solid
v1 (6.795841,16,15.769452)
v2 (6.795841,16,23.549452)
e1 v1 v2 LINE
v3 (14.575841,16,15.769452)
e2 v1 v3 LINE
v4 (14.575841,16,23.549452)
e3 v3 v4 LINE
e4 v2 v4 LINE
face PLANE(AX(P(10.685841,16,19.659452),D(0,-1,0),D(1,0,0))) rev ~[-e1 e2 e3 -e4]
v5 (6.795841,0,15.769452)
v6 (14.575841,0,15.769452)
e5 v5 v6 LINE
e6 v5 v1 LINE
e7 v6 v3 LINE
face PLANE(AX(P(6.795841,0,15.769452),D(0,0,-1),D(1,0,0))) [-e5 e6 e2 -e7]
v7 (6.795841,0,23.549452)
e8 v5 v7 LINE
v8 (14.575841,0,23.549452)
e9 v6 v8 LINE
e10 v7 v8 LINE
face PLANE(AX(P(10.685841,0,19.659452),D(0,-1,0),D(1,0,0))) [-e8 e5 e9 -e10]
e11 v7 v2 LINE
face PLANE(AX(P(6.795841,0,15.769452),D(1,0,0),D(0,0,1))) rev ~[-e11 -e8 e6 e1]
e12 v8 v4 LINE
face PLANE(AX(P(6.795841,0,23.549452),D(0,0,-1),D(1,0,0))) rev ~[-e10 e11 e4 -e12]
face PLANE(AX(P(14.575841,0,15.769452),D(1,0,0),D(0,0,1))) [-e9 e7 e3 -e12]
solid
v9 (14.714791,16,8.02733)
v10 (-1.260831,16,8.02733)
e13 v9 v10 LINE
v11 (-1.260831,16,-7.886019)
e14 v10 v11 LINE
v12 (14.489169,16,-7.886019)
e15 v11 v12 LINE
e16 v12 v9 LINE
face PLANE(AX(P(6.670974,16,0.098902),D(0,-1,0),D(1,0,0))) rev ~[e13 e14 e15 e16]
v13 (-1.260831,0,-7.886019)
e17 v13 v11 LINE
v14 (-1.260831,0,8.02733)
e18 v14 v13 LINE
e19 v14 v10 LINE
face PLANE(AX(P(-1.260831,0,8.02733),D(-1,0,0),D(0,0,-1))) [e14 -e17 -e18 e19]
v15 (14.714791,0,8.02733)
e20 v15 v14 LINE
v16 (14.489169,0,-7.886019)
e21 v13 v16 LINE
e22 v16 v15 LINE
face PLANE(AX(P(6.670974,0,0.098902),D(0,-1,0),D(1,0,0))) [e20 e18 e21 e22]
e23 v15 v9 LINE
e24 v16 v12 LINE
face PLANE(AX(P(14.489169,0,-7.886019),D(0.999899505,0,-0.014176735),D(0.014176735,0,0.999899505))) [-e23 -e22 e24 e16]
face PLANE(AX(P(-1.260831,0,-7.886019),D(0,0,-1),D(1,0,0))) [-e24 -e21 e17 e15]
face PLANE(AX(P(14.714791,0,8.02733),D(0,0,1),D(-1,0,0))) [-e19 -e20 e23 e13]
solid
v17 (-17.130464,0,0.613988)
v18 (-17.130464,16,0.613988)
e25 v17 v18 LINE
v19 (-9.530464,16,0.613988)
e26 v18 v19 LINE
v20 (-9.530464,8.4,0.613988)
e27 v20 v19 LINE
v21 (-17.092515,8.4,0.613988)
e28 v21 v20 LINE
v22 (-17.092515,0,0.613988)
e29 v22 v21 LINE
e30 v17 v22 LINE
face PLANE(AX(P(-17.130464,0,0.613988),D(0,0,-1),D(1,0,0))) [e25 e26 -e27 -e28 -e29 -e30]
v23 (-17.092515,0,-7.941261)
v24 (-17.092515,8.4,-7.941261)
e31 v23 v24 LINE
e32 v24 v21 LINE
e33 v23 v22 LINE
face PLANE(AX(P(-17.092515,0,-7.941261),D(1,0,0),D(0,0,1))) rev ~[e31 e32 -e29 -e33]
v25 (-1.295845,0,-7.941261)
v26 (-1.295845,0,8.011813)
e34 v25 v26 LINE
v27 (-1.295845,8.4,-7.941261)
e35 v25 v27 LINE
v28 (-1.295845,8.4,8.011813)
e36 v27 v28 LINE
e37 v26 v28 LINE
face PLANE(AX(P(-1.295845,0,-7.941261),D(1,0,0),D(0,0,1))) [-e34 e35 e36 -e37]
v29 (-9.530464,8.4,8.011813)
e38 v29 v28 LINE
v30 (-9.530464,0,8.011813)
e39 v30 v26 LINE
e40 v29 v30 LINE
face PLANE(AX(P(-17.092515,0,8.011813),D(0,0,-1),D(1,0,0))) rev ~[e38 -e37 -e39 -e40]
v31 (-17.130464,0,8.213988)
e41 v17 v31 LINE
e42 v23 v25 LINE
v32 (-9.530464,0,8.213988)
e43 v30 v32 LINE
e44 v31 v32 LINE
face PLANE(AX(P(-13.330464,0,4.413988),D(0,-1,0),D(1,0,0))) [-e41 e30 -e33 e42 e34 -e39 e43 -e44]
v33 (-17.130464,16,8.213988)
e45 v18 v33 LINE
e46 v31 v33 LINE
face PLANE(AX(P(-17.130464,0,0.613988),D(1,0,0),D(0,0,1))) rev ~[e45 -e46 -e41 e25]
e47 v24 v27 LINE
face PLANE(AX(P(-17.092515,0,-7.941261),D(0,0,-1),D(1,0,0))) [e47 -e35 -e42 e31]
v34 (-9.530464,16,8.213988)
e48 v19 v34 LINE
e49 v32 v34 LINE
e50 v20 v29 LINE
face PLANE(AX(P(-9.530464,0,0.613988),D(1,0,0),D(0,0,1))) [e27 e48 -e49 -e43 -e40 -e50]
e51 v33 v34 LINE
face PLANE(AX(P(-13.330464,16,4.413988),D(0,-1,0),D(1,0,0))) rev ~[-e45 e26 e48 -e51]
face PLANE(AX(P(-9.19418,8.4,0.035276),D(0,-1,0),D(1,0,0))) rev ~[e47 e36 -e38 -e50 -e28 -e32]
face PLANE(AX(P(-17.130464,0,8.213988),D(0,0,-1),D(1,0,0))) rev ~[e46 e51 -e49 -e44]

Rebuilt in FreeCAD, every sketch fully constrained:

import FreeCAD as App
import Part
import Sketcher
Q = App.Units.Quantity

doc = App.newDocument("Part")
body = doc.addObject("PartDesign::Body", "Body")
body.AllowCompound = True

sketch1 = doc.addObject("Sketcher::SketchObject", "Sketch")
body.addObject(sketch1)
sketch1.AttachmentSupport = (doc.XZ_Plane, [""])
sketch1.MapMode = "FlatFace"
sketch1.addGeometry([
    Part.LineSegment(App.Vector(6.795841, 23.549452, 0), App.Vector(6.795841, 15.769452, 0)),
    Part.LineSegment(App.Vector(6.795841, 15.769452, 0), App.Vector(14.575841, 15.769452, 0)),
    Part.LineSegment(App.Vector(14.575841, 15.769452, 0), App.Vector(14.575841, 23.549452, 0)),
    Part.LineSegment(App.Vector(14.575841, 23.549452, 0), App.Vector(6.795841, 23.549452, 0)),
    Part.LineSegment(App.Vector(-1.260831, -7.886019, 0), App.Vector(14.489169, -7.886019, 0)),
    Part.LineSegment(App.Vector(14.489169, -7.886019, 0), App.Vector(14.714791, 8.02733, 0)),
    Part.LineSegment(App.Vector(14.714791, 8.02733, 0), App.Vector(-1.260831, 8.02733, 0)),
    Part.LineSegment(App.Vector(-1.260831, 8.02733, 0), App.Vector(-1.260831, -7.886019, 0)),
], False)
sketch1.addConstraint([
    Sketcher.Constraint("Coincident", 0, 2, 1, 1),
    Sketcher.Constraint("Coincident", 1, 2, 2, 1),
    Sketcher.Constraint("Coincident", 2, 2, 3, 1),
    Sketcher.Constraint("Coincident", 3, 2, 0, 1),
    Sketcher.Constraint("Coincident", 4, 2, 5, 1),
    Sketcher.Constraint("Coincident", 5, 2, 6, 1),
    Sketcher.Constraint("Coincident", 6, 2, 7, 1),
    Sketcher.Constraint("Coincident", 7, 2, 4, 1),
    Sketcher.Constraint("Vertical", 0),
    Sketcher.Constraint("Horizontal", 1),
    Sketcher.Constraint("Vertical", 2),
    Sketcher.Constraint("Horizontal", 3),
    Sketcher.Constraint("Horizontal", 4),
    Sketcher.Constraint("Horizontal", 6),
    Sketcher.Constraint("Vertical", 7),
    Sketcher.Constraint("Equal", 3, 0),
    Sketcher.Constraint("DistanceX", 1, 1, 1, 2, Q("7.78 mm")),
    Sketcher.Constraint("DistanceX", 4, 1, 4, 2, Q("15.75 mm")),
    Sketcher.Constraint("DistanceY", 7, 2, 7, 1, Q("15.913349 mm")),
    Sketcher.Constraint("Distance", 5, Q("15.914948 mm")),
    Sketcher.Constraint("DistanceX", -1, 1, 0, 2, Q("6.795841 mm")),
    Sketcher.Constraint("DistanceY", -1, 1, 0, 2, Q("15.769452 mm")),
    Sketcher.Constraint("DistanceX", -1, 1, 4, 2, Q("14.489169 mm")),
    Sketcher.Constraint("DistanceY", 4, 2, -1, 1, Q("7.886019 mm")),
])
pad1 = doc.addObject("PartDesign::Pad", "Pad")
body.addObject(pad1)
pad1.Profile = sketch1
pad1.Length = 16
pad1.Reversed = True
body2 = doc.addObject("PartDesign::Body", "Body001")

sketch2 = doc.addObject("Sketcher::SketchObject", "Sketch001")
body2.addObject(sketch2)
sketch2.AttachmentSupport = (doc.getObject("XZ_Plane001"), [""])
sketch2.MapMode = "FlatFace"
sketch2.addGeometry([
    Part.LineSegment(App.Vector(-17, 8, 0), App.Vector(-17, -8, 0)),
    Part.LineSegment(App.Vector(-17, -8, 0), App.Vector(-1, -8, 0)),
    Part.LineSegment(App.Vector(-1, -8, 0), App.Vector(-1, 8, 0)),
    Part.LineSegment(App.Vector(-1, 8, 0), App.Vector(-17, 8, 0)),
], False)
sketch2.addConstraint([
    Sketcher.Constraint("Coincident", 0, 2, 1, 1),
    Sketcher.Constraint("Coincident", 1, 2, 2, 1),
    Sketcher.Constraint("Coincident", 2, 2, 3, 1),
    Sketcher.Constraint("Coincident", 3, 2, 0, 1),
    Sketcher.Constraint("Vertical", 0),
    Sketcher.Constraint("Horizontal", 1),
    Sketcher.Constraint("Vertical", 2),
    Sketcher.Constraint("Horizontal", 3),
    Sketcher.Constraint("DistanceX", 1, 1, 1, 2, Q("15.79667 mm")),
    Sketcher.Constraint("DistanceY", 0, 2, 0, 1, Q("15.953074 mm")),
    Sketcher.Constraint("DistanceY", 0, 2, -1, 1, Q("7.941261 mm")),
    Sketcher.Constraint("DistanceX", 0, 2, -1, 1, Q("17.092515 mm")),
])
pad2 = doc.addObject("PartDesign::Pad", "Pad001")
body2.addObject(pad2)
pad2.Profile = sketch2
pad2.Length = 8.4
pad2.Reversed = True

sketch3 = doc.addObject("Sketcher::SketchObject", "Sketch002")
body2.addObject(sketch3)
sketch3.AttachmentSupport = (doc.getObject("XZ_Plane001"), [""])
sketch3.MapMode = "FlatFace"
sketch3.addGeometry([
    Part.LineSegment(App.Vector(-17, 8, 0), App.Vector(-17, 1, 0)),
    Part.LineSegment(App.Vector(-17, 1, 0), App.Vector(-10, 1, 0)),
    Part.LineSegment(App.Vector(-10, 1, 0), App.Vector(-10, 8, 0)),
    Part.LineSegment(App.Vector(-10, 8, 0), App.Vector(-17, 8, 0)),
], False)
sketch3.addConstraint([
    Sketcher.Constraint("Coincident", 0, 2, 1, 1),
    Sketcher.Constraint("Coincident", 1, 2, 2, 1),
    Sketcher.Constraint("Coincident", 2, 2, 3, 1),
    Sketcher.Constraint("Coincident", 3, 2, 0, 1),
    Sketcher.Constraint("Vertical", 0),
    Sketcher.Constraint("Horizontal", 1),
    Sketcher.Constraint("Vertical", 2),
    Sketcher.Constraint("Horizontal", 3),
    Sketcher.Constraint("Equal", 3, 0),
    Sketcher.Constraint("DistanceX", 1, 1, 1, 2, Q("7.6 mm")),
    Sketcher.Constraint("DistanceX", 0, 2, -1, 1, Q("17.130464 mm")),
    Sketcher.Constraint("DistanceY", -1, 1, 0, 2, Q("0.613988 mm")),
])
pad3 = doc.addObject("PartDesign::Pad", "Pad002")
body2.addObject(pad3)
pad3.Profile = sketch3
pad3.Length = 16
pad3.Reversed = True

doc.recompute()
